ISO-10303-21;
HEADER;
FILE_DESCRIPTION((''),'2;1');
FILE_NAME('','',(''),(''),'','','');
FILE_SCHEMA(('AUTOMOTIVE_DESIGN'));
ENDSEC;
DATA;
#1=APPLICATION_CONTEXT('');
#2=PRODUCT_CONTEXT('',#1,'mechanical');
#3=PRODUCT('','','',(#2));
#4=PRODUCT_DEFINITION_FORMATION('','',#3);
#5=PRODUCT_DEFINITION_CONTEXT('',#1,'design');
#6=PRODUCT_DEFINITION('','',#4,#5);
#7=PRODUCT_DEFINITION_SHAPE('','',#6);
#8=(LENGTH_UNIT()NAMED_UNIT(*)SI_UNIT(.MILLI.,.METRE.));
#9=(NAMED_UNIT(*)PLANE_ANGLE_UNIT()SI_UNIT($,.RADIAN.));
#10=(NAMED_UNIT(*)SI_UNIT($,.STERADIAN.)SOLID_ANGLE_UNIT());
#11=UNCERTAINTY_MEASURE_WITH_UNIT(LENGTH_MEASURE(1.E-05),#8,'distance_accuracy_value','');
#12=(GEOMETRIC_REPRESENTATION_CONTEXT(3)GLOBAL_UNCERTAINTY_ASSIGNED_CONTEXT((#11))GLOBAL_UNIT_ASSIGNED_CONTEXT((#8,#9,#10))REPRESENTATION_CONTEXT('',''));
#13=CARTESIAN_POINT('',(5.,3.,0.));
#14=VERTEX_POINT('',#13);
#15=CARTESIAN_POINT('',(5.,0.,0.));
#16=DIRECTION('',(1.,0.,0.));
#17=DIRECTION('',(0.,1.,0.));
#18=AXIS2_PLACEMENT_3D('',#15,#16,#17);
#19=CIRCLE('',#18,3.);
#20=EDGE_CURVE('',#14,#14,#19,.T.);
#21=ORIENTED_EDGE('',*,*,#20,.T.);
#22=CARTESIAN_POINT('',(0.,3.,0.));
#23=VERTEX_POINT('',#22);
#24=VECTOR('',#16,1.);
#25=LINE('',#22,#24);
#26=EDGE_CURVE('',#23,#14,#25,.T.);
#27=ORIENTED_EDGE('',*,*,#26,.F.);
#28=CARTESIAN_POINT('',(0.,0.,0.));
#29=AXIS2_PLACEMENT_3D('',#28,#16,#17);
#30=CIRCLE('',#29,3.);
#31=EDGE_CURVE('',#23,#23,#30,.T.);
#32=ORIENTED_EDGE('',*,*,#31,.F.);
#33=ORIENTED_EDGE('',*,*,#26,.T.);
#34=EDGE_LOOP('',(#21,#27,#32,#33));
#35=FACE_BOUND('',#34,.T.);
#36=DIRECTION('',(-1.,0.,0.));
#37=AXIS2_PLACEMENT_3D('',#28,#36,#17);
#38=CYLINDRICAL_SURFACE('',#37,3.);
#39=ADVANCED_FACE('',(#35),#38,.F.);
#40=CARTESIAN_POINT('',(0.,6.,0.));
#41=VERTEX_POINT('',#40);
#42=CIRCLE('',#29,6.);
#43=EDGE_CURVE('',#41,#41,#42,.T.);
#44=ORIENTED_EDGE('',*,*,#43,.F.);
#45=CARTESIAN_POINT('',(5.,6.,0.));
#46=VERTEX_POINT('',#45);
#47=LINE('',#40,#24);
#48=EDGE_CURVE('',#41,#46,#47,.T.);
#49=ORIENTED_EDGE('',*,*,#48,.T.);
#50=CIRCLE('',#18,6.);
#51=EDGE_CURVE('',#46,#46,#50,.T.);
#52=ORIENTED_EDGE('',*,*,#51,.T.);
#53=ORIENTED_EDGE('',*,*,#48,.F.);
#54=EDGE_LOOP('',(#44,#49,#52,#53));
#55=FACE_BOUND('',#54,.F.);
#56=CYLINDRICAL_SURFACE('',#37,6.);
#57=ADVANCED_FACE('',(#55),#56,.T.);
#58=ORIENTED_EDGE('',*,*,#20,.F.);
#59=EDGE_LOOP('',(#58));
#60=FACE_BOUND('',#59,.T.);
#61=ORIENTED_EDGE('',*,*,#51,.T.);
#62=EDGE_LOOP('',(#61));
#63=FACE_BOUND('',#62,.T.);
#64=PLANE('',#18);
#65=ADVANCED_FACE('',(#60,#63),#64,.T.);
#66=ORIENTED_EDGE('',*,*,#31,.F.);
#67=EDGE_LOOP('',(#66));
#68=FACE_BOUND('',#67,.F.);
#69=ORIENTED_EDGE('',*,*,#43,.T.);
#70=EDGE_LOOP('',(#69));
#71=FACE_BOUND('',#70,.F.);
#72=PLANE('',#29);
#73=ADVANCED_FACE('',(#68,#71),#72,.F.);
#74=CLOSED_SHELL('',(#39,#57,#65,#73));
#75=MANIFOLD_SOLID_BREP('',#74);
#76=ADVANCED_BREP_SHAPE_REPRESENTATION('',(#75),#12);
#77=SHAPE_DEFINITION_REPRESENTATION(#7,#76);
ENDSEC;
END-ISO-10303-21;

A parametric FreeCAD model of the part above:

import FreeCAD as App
import Part
import Sketcher
Q = App.Units.Quantity

doc = App.newDocument("Part")
params = doc.addObject("Spreadsheet::Sheet", "Params")
for row, (alias, value) in enumerate([
    ("sketch1_diameter", "12 mm"),
    ("sketch1_diameter2", "6 mm"),
    ("pad1_length", "5 mm"),
], start=1):
    params.set(f"A{row}", alias)
    params.set(f"B{row}", "=" + value)
    params.setAlias(f"B{row}", alias)

body = doc.addObject("PartDesign::Body", "Body")

sketch1 = body.newObject("Sketcher::SketchObject", "Sketch")
sketch1.AttachmentSupport = (doc.getObject("YZ_Plane"), [""])
sketch1.MapMode = "FlatFace"
sketch1.addGeometry([
    Part.Circle(App.Vector(0, 0, 0), App.Vector(0, 0, 1), 6),
    Part.Circle(App.Vector(0, 0, 0), App.Vector(0, 0, 1), 3),
], False)
sketch1.addConstraint([
    Sketcher.Constraint("Coincident", 0, 3, -1, 1),
    Sketcher.Constraint("Coincident", 1, 3, -1, 1),
    Sketcher.Constraint("Diameter", 0, Q("12 mm")),
    Sketcher.Constraint("Diameter", 1, Q("6 mm")),
])
sketch1.setExpression("Constraints[2]", "Params.sketch1_diameter")
sketch1.setExpression("Constraints[3]", "Params.sketch1_diameter2")
pad1 = body.newObject("PartDesign::Pad", "Pad")
pad1.Profile = sketch1
pad1.setExpression("Length", "Params.pad1_length")

doc.recompute()
